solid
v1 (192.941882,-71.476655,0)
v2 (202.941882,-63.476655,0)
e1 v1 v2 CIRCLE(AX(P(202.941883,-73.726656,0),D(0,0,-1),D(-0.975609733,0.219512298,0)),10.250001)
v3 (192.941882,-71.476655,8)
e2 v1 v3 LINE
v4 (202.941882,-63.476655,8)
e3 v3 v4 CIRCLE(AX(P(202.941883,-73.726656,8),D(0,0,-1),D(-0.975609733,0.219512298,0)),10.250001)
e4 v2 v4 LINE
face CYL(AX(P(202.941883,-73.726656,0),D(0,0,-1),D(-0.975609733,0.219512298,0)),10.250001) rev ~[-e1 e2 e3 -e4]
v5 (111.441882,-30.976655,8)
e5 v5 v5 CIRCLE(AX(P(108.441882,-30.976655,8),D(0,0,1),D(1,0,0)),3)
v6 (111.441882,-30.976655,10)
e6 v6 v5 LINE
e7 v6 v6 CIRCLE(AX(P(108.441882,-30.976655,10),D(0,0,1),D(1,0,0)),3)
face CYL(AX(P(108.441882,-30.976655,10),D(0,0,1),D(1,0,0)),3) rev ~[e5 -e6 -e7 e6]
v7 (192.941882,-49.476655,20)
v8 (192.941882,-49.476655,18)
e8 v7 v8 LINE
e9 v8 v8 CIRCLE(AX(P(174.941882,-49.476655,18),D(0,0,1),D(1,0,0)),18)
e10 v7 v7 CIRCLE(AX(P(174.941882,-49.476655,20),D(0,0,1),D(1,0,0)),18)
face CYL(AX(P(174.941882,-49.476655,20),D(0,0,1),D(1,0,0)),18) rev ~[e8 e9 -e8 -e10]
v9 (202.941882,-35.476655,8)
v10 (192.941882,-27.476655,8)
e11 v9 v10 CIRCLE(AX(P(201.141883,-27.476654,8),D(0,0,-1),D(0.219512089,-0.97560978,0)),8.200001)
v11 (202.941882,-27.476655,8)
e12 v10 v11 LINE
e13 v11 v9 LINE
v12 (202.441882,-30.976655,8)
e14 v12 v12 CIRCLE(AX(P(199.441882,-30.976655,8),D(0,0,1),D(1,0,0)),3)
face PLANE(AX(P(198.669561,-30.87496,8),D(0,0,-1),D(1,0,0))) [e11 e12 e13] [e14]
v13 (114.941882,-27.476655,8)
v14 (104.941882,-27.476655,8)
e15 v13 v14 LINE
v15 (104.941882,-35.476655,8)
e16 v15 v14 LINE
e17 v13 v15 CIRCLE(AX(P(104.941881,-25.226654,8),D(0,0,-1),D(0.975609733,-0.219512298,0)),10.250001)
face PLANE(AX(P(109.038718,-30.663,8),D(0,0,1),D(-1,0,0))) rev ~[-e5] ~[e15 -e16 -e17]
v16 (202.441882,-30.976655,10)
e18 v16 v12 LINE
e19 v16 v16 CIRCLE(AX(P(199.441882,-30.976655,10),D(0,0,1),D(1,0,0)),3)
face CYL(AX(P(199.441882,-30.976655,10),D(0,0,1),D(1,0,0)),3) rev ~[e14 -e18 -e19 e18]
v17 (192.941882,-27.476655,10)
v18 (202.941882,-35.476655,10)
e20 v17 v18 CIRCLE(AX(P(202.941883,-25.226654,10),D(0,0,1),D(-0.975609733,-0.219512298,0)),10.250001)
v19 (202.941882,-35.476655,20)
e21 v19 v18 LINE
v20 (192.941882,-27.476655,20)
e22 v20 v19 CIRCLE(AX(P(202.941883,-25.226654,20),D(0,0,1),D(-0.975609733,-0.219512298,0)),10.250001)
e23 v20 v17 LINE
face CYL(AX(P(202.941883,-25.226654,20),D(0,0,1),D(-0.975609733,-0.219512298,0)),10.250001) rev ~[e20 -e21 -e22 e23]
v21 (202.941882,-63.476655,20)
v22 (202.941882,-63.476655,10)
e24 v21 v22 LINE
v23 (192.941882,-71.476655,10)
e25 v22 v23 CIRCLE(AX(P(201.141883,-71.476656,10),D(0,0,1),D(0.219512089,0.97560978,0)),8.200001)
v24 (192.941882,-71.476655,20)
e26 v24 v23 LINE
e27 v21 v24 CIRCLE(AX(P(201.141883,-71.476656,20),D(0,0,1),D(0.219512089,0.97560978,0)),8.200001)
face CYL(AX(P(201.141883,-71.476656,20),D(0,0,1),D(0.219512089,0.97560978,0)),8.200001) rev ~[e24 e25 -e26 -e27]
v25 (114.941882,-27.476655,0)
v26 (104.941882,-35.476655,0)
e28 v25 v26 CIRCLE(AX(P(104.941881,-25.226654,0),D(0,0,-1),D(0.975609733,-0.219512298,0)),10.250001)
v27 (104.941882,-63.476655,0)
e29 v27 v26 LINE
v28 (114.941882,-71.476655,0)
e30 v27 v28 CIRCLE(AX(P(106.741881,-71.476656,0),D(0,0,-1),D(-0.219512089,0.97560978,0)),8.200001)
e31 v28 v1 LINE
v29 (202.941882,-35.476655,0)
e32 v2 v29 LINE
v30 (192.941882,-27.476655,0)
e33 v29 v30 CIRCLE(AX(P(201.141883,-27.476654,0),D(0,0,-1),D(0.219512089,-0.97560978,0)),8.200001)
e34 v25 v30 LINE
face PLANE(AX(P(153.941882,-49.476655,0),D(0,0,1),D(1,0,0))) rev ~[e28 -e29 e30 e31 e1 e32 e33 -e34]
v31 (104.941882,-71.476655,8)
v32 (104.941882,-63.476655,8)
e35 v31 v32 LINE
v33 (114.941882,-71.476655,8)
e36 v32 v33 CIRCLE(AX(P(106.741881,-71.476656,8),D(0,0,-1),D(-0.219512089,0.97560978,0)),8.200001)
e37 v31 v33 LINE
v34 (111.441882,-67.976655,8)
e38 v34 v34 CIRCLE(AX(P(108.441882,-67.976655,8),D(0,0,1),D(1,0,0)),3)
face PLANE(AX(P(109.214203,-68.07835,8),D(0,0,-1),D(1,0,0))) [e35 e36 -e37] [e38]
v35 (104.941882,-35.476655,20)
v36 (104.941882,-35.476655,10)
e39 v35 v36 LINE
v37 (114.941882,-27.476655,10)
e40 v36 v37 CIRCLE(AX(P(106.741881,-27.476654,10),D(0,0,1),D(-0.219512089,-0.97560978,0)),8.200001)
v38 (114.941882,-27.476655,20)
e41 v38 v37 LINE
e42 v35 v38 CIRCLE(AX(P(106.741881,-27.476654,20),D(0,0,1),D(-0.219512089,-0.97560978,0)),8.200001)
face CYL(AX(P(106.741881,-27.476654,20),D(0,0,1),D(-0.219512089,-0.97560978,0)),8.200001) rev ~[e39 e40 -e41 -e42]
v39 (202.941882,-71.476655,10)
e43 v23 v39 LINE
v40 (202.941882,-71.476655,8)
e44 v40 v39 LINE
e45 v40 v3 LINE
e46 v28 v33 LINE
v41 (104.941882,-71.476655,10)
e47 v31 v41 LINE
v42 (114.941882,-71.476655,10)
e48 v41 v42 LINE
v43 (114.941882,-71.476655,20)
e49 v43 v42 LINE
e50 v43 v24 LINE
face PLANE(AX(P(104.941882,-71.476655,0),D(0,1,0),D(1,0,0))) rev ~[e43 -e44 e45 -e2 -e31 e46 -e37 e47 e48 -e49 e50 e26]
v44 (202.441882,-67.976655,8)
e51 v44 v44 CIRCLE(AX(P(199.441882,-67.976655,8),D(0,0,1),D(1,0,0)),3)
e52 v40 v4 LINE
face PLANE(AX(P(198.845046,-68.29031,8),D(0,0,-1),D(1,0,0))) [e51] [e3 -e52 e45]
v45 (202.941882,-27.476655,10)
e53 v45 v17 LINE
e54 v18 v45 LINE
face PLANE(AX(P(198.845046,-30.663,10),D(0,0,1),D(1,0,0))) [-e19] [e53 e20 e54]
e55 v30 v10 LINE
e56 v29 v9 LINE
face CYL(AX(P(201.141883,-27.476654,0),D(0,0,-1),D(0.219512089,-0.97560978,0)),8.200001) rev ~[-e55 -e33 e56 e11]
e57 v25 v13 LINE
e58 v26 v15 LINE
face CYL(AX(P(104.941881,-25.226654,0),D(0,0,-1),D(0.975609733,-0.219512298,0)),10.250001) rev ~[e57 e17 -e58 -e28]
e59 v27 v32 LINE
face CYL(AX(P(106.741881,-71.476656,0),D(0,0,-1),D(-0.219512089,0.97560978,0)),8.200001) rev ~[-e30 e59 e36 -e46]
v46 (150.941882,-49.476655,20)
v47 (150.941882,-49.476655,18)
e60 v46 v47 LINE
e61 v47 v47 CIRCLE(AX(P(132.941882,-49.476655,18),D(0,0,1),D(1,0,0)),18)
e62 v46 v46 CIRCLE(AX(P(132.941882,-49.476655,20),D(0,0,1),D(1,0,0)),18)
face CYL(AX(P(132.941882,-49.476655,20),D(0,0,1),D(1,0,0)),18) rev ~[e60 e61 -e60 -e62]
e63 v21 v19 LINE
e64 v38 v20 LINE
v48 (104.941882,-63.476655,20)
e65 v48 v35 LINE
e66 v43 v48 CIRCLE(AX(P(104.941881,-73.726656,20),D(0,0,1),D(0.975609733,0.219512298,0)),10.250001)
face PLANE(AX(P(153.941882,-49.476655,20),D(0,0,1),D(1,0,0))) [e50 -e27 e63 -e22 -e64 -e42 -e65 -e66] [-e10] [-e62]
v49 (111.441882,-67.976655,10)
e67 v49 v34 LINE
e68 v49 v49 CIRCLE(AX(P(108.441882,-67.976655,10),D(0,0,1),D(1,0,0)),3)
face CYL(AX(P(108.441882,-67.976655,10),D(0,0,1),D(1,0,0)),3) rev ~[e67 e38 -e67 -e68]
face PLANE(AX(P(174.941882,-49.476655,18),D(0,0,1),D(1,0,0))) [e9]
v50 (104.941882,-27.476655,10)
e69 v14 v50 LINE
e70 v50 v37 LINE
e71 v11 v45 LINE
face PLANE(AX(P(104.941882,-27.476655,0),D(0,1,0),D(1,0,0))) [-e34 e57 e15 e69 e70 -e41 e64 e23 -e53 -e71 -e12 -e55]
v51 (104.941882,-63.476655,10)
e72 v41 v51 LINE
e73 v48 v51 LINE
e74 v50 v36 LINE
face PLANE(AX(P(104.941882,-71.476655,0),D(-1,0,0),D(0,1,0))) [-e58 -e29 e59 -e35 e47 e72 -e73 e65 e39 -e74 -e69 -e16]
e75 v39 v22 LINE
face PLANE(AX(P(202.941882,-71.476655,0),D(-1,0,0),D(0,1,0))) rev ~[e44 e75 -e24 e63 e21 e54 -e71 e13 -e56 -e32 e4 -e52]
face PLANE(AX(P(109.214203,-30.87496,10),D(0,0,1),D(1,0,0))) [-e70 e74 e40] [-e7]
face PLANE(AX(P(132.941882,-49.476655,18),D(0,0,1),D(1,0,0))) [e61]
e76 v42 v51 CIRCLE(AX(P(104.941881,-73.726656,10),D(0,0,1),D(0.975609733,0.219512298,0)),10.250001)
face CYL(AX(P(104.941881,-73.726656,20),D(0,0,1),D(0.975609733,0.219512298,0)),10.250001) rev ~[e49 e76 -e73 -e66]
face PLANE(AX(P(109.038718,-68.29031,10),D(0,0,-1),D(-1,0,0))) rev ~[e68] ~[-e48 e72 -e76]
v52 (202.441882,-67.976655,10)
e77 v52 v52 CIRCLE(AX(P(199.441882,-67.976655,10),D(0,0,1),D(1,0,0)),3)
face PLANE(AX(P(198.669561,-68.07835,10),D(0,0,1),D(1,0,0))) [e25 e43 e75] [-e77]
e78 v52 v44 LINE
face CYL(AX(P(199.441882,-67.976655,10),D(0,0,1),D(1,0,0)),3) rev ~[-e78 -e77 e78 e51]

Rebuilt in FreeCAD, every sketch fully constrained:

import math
import FreeCAD as App
import Part
import Sketcher
from FreeCAD import Vector
Q = App.Units.Quantity


def add_polygon(sketch, points):
    """Adds a closed chain of lines whose ends are joined by coincident constraints."""
    first, n = sketch.GeometryCount, len(points)
    for a, b in zip(points, points[1:] + points[:1]):
        sketch.addGeometry(Part.LineSegment(App.Vector(*a, 0), App.Vector(*b, 0)), False)
    for i in range(n):
        sketch.addConstraint(Sketcher.Constraint("Coincident", first + i, 2, first + (i + 1) % n, 1))

doc = App.newDocument("Part")
body = doc.addObject("PartDesign::Body", "Body")

# Sketch on XY plane
sketch1 = body.newObject("Sketcher::SketchObject", "Sketch")
sketch1.AttachmentSupport = (doc.getObject("XY_Plane"), [""])
sketch1.MapMode = "FlatFace"
add_polygon(sketch1, [(0, 44), (0, 0), (98, 0), (98, 44)])  # lines 0-3
sketch1.addConstraint([
    Sketcher.Constraint("Vertical", 0),
    Sketcher.Constraint("Horizontal", 1),
    Sketcher.Constraint("Vertical", 2),
    Sketcher.Constraint("Horizontal", 3),
    Sketcher.Constraint("Coincident", 0, 2, -1, 1),
    Sketcher.Constraint("DistanceX", 1, 1, 1, 2, Q("98 mm")),
    Sketcher.Constraint("DistanceY", 0, 2, 0, 1, Q("44 mm")),
])
pad1 = body.newObject("PartDesign::Pad", "Pad")
pad1.Profile = sketch1
pad1.Length = 20

# Sketch on XY plane
sketch2 = body.newObject("Sketcher::SketchObject", "Sketch001")
sketch2.AttachmentSupport = (doc.getObject("XY_Plane"), [""])
sketch2.MapMode = "FlatFace"
sketch2.AttachmentOffset = App.Placement(Vector(0, 0, 20), App.Rotation())
sketch2.addGeometry([
    Part.LineSegment(Vector(0, 44, 0), Vector(0, 36, 0)),  # 0
    Part.ArcOfCircle(Part.Circle(Vector(2, 44, 0), Vector(0, 0, 1), 8), math.radians(-103), math.radians(0)),  # 1
    Part.LineSegment(Vector(10, 44, 0), Vector(0, 44, 0)),  # 2
    Part.LineSegment(Vector(0, 8, 0), Vector(0, 0, 0)),  # 3
    Part.LineSegment(Vector(0, 0, 0), Vector(10, 0, 0)),  # 4
    Part.ArcOfCircle(Part.Circle(Vector(0, -2, 0), Vector(0, 0, 1), 10), math.radians(13), math.radians(90)),  # 5
    Part.LineSegment(Vector(98, 36, 0), Vector(98, 44, 0)),  # 6
    Part.LineSegment(Vector(98, 44, 0), Vector(88, 44, 0)),  # 7
    Part.ArcOfCircle(Part.Circle(Vector(98, 46, 0), Vector(0, 0, 1), 10), math.radians(-167), math.radians(-90)),  # 8
    Part.LineSegment(Vector(88, 0, 0), Vector(98, 0, 0)),  # 9
    Part.LineSegment(Vector(98, 0, 0), Vector(98, 8, 0)),  # 10
    Part.ArcOfCircle(Part.Circle(Vector(96, 0, 0), Vector(0, 0, 1), 8), math.radians(77), math.radians(180)),  # 11
], False)
sketch2.addConstraint([
    Sketcher.Constraint("Coincident", 0, 2, 1, 1),
    Sketcher.Constraint("Coincident", 1, 2, 2, 1),
    Sketcher.Constraint("Coincident", 2, 2, 0, 1),
    Sketcher.Constraint("Coincident", 3, 2, 4, 1),
    Sketcher.Constraint("Coincident", 4, 2, 5, 1),
    Sketcher.Constraint("Coincident", 5, 2, 3, 1),
    Sketcher.Constraint("Coincident", 6, 2, 7, 1),
    Sketcher.Constraint("Coincident", 7, 2, 8, 1),
    Sketcher.Constraint("Coincident", 8, 2, 6, 1),
    Sketcher.Constraint("Coincident", 9, 2, 10, 1),
    Sketcher.Constraint("Coincident", 10, 2, 11, 1),
    Sketcher.Constraint("Coincident", 11, 2, 9, 1),
    Sketcher.Constraint("Vertical", 0),
    Sketcher.Constraint("Horizontal", 2),
    Sketcher.Constraint("Vertical", 3),
    Sketcher.Constraint("Horizontal", 4),
    Sketcher.Constraint("Vertical", 6),
    Sketcher.Constraint("Horizontal", 7),
    Sketcher.Constraint("Horizontal", 9),
    Sketcher.Constraint("Vertical", 10),
    Sketcher.Constraint("Coincident", 3, 2, -1, 1),
    Sketcher.Constraint("Equal", 5, 8),
    Sketcher.Constraint("Equal", 1, 11),
    Sketcher.Constraint("PointOnObject", 5, 3, -2),
    Sketcher.Constraint("PointOnObject", 11, 3, -1),
    Sketcher.Constraint("PointOnObject", 0, 2, -2),
    Sketcher.Constraint("PointOnObject", 9, 2, -1),
    Sketcher.Constraint("Horizontal", 2, 2, 6, 2),
    Sketcher.Constraint("Horizontal", 0, 2, 8, 2),
    Sketcher.Constraint("Horizontal", 5, 2, 10, 2),
    Sketcher.Constraint("Vertical", 1, 2, 4, 2),
    Sketcher.Constraint("Vertical", 8, 3, 6, 2),
    Sketcher.Constraint("Vertical", 8, 2, 9, 2),
    Sketcher.Constraint("Vertical", 7, 2, 11, 2),
    Sketcher.Constraint("Equal", 4, 7),
    Sketcher.Constraint("Radius", 1, Q("8.200001 mm")),
    Sketcher.Constraint("DistanceX", 2, 2, 2, 1, Q("10 mm")),
    Sketcher.Constraint("DistanceY", -1, 1, 1, 3, Q("44.000001 mm")),
    Sketcher.Constraint("DistanceX", -1, 1, 8, 3, Q("98.000001 mm")),
])
pocket1 = body.newObject("PartDesign::Pocket", "Pocket")
pocket1.Profile = sketch2
pocket1.Length = 10

# Sketch on XY plane
sketch3 = body.newObject("Sketcher::SketchObject", "Sketch002")
sketch3.AttachmentSupport = (doc.getObject("XY_Plane"), [""])
sketch3.MapMode = "FlatFace"
sketch3.addGeometry([
    Part.LineSegment(Vector(0, 44, 0), Vector(10, 44, 0)),  # 0
    Part.ArcOfCircle(Part.Circle(Vector(0, 46, 0), Vector(0, 0, 1), 10), math.radians(-90), math.radians(-13)),  # 1
    Part.LineSegment(Vector(0, 36, 0), Vector(0, 44, 0)),  # 2
    Part.LineSegment(Vector(0, 0, 0), Vector(0, 8, 0)),  # 3
    Part.ArcOfCircle(Part.Circle(Vector(2, 0, 0), Vector(0, 0, 1), 8), math.radians(0), math.radians(103)),  # 4
    Part.LineSegment(Vector(10, 0, 0), Vector(0, 0, 0)),  # 5
    Part.LineSegment(Vector(98, 0, 0), Vector(88, 0, 0)),  # 6
    Part.ArcOfCircle(Part.Circle(Vector(98, -2, 0), Vector(0, 0, 1), 10), math.radians(90), math.radians(167)),  # 7
    Part.LineSegment(Vector(98, 8, 0), Vector(98, 0, 0)),  # 8
    Part.LineSegment(Vector(88, 44, 0), Vector(98, 44, 0)),  # 9
    Part.LineSegment(Vector(98, 44, 0), Vector(98, 36, 0)),  # 10
    Part.ArcOfCircle(Part.Circle(Vector(96, 44, 0), Vector(0, 0, 1), 8), math.radians(-180), math.radians(-77)),  # 11
], False)
sketch3.addConstraint([
    Sketcher.Constraint("Coincident", 0, 2, 1, 2),
    Sketcher.Constraint("Coincident", 1, 1, 2, 1),
    Sketcher.Constraint("Coincident", 2, 2, 0, 1),
    Sketcher.Constraint("Coincident", 3, 2, 4, 2),
    Sketcher.Constraint("Coincident", 4, 1, 5, 1),
    Sketcher.Constraint("Coincident", 5, 2, 3, 1),
    Sketcher.Constraint("Coincident", 6, 2, 7, 2),
    Sketcher.Constraint("Coincident", 7, 1, 8, 1),
    Sketcher.Constraint("Coincident", 8, 2, 6, 1),
    Sketcher.Constraint("Coincident", 9, 2, 10, 1),
    Sketcher.Constraint("Coincident", 10, 2, 11, 2),
    Sketcher.Constraint("Coincident", 11, 1, 9, 1),
    Sketcher.Constraint("Horizontal", 0),
    Sketcher.Constraint("Vertical", 2),
    Sketcher.Constraint("Vertical", 3),
    Sketcher.Constraint("Horizontal", 5),
    Sketcher.Constraint("Horizontal", 6),
    Sketcher.Constraint("Vertical", 8),
    Sketcher.Constraint("Horizontal", 9),
    Sketcher.Constraint("Vertical", 10),
    Sketcher.Constraint("Coincident", 5, 2, -1, 1),
    Sketcher.Constraint("Equal", 1, 7),
    Sketcher.Constraint("Equal", 4, 11),
    Sketcher.Constraint("PointOnObject", 1, 3, -2),
    Sketcher.Constraint("PointOnObject", 4, 3, -1),
    Sketcher.Constraint("PointOnObject", 1, 1, -2),
    Sketcher.Constraint("PointOnObject", 6, 2, -1),
    Sketcher.Constraint("Horizontal", 11, 3, 0, 2),
    Sketcher.Constraint("Horizontal", 3, 2, 7, 1),
    Sketcher.Constraint("Horizontal", 2, 2, 9, 2),
    Sketcher.Constraint("Horizontal", 1, 1, 10, 2),
    Sketcher.Constraint("Vertical", 0, 2, 4, 1),
    Sketcher.Constraint("Vertical", 8, 2, 9, 2),
    Sketcher.Constraint("Vertical", 6, 2, 11, 1),
    Sketcher.Constraint("Equal", 5, 6),
    Sketcher.Constraint("Radius", 4, Q("8.200001 mm")),
    Sketcher.Constraint("DistanceX", 0, 1, 0, 2, Q("10 mm")),
    Sketcher.Constraint("DistanceX", -1, 1, 7, 3, Q("98.000001 mm")),
    Sketcher.Constraint("DistanceY", -1, 1, 11, 3, Q("44.000001 mm")),
])
pocket2 = body.newObject("PartDesign::Pocket", "Pocket001")
pocket2.Profile = sketch3
pocket2.Length = 8
pocket2.Reversed = True

# Sketch on XY plane
sketch4 = body.newObject("Sketcher::SketchObject", "Sketch003")
sketch4.AttachmentSupport = (doc.getObject("XY_Plane"), [""])
sketch4.MapMode = "FlatFace"
sketch4.AttachmentOffset = App.Placement(Vector(0, 0, 10), App.Rotation())
sketch4.addGeometry([
    Part.Circle(Vector(3.5, 3.5, 0), Vector(0, 0, 1), 3),
    Part.Circle(Vector(3.5, 40.5, 0), Vector(0, 0, 1), 3),
    Part.Circle(Vector(94.5, 40.5, 0), Vector(0, 0, 1), 3),
    Part.Circle(Vector(94.5, 3.5, 0), Vector(0, 0, 1), 3),
], False)
sketch4.addConstraint([
    Sketcher.Constraint("Equal", 0, 1),
    Sketcher.Constraint("Equal", 1, 2),
    Sketcher.Constraint("Equal", 2, 3),
    Sketcher.Constraint("Horizontal", 1, 3, 2, 3),
    Sketcher.Constraint("Horizontal", 0, 3, 3, 3),
    Sketcher.Constraint("Vertical", 0, 3, 1, 3),
    Sketcher.Constraint("Vertical", 2, 3, 3, 3),
    Sketcher.Constraint("Diameter", 0, Q("6 mm")),
    Sketcher.Constraint("DistanceY", 0, 3, 1, 3, Q("37 mm")),
    Sketcher.Constraint("DistanceX", 1, 3, 2, 3, Q("91 mm")),
    Sketcher.Constraint("DistanceX", -1, 1, 0, 3, Q("3.5 mm")),
    Sketcher.Constraint("DistanceY", -1, 1, 0, 3, Q("3.5 mm")),
])
pocket3 = body.newObject("PartDesign::Pocket", "Pocket002")
pocket3.Profile = sketch4
pocket3.Length = 25

# Sketch on XY plane
sketch5 = body.newObject("Sketcher::SketchObject", "Sketch004")
sketch5.AttachmentSupport = (doc.getObject("XY_Plane"), [""])
sketch5.MapMode = "FlatFace"
sketch5.AttachmentOffset = App.Placement(Vector(0, 0, 20), App.Rotation())
sketch5.addGeometry([
    Part.Circle(Vector(28, 22, 0), Vector(0, 0, 1), 18),
    Part.Circle(Vector(70, 22, 0), Vector(0, 0, 1), 18),
], False)
sketch5.addConstraint([
    Sketcher.Constraint("Equal", 0, 1),
    Sketcher.Constraint("Horizontal", 0, 3, 1, 3),
    Sketcher.Constraint("Diameter", 0, Q("36 mm")),
    Sketcher.Constraint("DistanceX", -1, 1, 0, 3, Q("28 mm")),
    Sketcher.Constraint("DistanceY", -1, 1, 0, 3, Q("22 mm")),
    Sketcher.Constraint("DistanceX", -1, 1, 1, 3, Q("70 mm")),
])
pocket4 = body.newObject("PartDesign::Pocket", "Pocket003")
pocket4.Profile = sketch5
pocket4.Length = 2
body2 = doc.addObject("PartDesign::Body", "Body001")
doc.recompute()

body.Placement = App.Placement(Vector(104.941882, -71.476655, 0), App.Rotation(Vector(0, 0, 1), 0))
boolean = body2.newObject("PartDesign::Boolean", "Boolean")
boolean.Type = "Fuse"
boolean.addObjects([body])

doc.recompute()
